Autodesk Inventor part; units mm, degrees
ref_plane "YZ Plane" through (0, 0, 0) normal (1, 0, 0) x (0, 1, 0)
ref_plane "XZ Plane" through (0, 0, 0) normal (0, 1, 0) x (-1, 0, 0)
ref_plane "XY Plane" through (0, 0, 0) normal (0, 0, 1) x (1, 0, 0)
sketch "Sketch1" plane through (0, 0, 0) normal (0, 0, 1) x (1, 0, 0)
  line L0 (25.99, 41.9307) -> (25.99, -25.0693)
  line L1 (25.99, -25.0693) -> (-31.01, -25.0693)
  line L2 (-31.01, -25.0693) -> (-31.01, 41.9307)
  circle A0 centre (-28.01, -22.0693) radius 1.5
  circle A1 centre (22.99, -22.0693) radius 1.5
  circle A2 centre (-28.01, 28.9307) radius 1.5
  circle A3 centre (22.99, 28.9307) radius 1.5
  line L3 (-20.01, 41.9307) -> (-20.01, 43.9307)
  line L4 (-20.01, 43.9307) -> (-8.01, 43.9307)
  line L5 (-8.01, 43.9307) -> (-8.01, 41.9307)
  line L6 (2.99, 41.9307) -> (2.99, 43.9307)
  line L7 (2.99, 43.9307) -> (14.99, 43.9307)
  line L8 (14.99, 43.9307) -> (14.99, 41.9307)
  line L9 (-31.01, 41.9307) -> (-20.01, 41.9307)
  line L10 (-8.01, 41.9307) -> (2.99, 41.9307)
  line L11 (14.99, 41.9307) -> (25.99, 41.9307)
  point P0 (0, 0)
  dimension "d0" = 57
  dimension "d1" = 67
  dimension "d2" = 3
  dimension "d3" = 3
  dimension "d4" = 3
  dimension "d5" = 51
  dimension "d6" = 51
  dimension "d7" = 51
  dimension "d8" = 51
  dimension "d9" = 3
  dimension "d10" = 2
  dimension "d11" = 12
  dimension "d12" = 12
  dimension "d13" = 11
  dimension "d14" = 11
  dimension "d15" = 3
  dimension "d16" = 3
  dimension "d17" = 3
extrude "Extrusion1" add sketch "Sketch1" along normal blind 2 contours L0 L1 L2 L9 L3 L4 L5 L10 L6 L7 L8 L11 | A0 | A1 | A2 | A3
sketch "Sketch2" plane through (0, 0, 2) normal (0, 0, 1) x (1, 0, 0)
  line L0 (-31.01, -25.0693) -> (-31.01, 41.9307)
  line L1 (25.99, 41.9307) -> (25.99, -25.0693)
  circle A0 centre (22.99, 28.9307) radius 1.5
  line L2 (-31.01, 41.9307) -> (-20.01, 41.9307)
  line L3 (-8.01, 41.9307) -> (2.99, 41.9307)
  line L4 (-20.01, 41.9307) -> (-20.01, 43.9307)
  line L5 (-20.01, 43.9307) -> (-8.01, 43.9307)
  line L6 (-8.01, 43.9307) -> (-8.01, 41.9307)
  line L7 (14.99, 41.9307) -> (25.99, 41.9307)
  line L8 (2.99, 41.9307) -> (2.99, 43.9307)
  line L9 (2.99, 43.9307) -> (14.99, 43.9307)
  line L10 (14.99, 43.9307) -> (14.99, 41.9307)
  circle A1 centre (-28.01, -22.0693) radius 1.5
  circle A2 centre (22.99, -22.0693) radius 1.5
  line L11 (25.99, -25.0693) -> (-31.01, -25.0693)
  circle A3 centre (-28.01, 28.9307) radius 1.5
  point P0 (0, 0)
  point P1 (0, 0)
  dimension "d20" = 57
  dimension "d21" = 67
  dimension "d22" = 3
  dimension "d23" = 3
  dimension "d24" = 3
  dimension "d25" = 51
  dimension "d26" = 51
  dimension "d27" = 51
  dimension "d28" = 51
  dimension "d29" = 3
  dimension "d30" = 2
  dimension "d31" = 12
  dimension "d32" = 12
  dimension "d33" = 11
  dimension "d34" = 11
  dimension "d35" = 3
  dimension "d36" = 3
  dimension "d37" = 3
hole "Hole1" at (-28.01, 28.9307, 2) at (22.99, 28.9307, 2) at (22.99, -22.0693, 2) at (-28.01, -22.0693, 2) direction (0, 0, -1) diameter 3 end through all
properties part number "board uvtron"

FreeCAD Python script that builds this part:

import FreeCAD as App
import Part
import Sketcher
Q = App.Units.Quantity

doc = App.newDocument("Part")
body = doc.addObject("PartDesign::Body", "Body")

# Sketch on XY plane
sketch1 = doc.addObject("Sketcher::SketchObject", "Sketch")
body.addObject(sketch1)
sketch1.AttachmentSupport = (doc.XY_Plane, [""])
sketch1.MapMode = "FlatFace"
sketch1.addGeometry([
    Part.LineSegment(App.Vector(26, -25.1, 0), App.Vector(26, 41.9, 0)),  # 0
    Part.LineSegment(App.Vector(26, 41.9, 0), App.Vector(15, 41.9, 0)),  # 1
    Part.LineSegment(App.Vector(15, 41.9, 0), App.Vector(15, 43.9, 0)),  # 2
    Part.LineSegment(App.Vector(15, 43.9, 0), App.Vector(3, 43.9, 0)),  # 3
    Part.LineSegment(App.Vector(3, 43.9, 0), App.Vector(3, 41.9, 0)),  # 4
    Part.LineSegment(App.Vector(3, 41.9, 0), App.Vector(-8, 41.9, 0)),  # 5
    Part.LineSegment(App.Vector(-8, 41.9, 0), App.Vector(-8, 43.9, 0)),  # 6
    Part.LineSegment(App.Vector(-8, 43.9, 0), App.Vector(-20, 43.9, 0)),  # 7
    Part.LineSegment(App.Vector(-20, 43.9, 0), App.Vector(-20, 41.9, 0)),  # 8
    Part.LineSegment(App.Vector(-20, 41.9, 0), App.Vector(-31, 41.9, 0)),  # 9
    Part.LineSegment(App.Vector(-31, 41.9, 0), App.Vector(-31, -25.1, 0)),  # 10
    Part.LineSegment(App.Vector(-31, -25.1, 0), App.Vector(26, -25.1, 0)),  # 11
], False)
sketch1.addConstraint([
    Sketcher.Constraint("Coincident", 0, 2, 1, 1),
    Sketcher.Constraint("Coincident", 1, 2, 2, 1),
    Sketcher.Constraint("Coincident", 2, 2, 3, 1),
    Sketcher.Constraint("Coincident", 3, 2, 4, 1),
    Sketcher.Constraint("Coincident", 4, 2, 5, 1),
    Sketcher.Constraint("Coincident", 5, 2, 6, 1),
    Sketcher.Constraint("Coincident", 6, 2, 7, 1),
    Sketcher.Constraint("Coincident", 7, 2, 8, 1),
    Sketcher.Constraint("Coincident", 8, 2, 9, 1),
    Sketcher.Constraint("Coincident", 9, 2, 10, 1),
    Sketcher.Constraint("Coincident", 10, 2, 11, 1),
    Sketcher.Constraint("Coincident", 11, 2, 0, 1),
    Sketcher.Constraint("Vertical", 0),
    Sketcher.Constraint("Horizontal", 1),
    Sketcher.Constraint("Vertical", 2),
    Sketcher.Constraint("Horizontal", 3),
    Sketcher.Constraint("Vertical", 4),
    Sketcher.Constraint("Horizontal", 5),
    Sketcher.Constraint("Vertical", 6),
    Sketcher.Constraint("Horizontal", 7),
    Sketcher.Constraint("Vertical", 8),
    Sketcher.Constraint("Horizontal", 9),
    Sketcher.Constraint("Vertical", 10),
    Sketcher.Constraint("Horizontal", 11),
    Sketcher.Constraint("Horizontal", 1, 2, 4, 2),
    Sketcher.Constraint("Horizontal", 3, 2, 6, 2),
    Sketcher.Constraint("Horizontal", 5, 2, 8, 2),
    Sketcher.Constraint("Equal", 1, 5),
    Sketcher.Constraint("Equal", 3, 7),
    Sketcher.Constraint("Equal", 5, 9),
    Sketcher.Constraint("DistanceX", 1, 2, 1, 1, Q("11 mm")),
    Sketcher.Constraint("DistanceX", 3, 2, 3, 1, Q("12 mm")),
    Sketcher.Constraint("DistanceY", 0, 1, 0, 2, Q("67 mm")),
    Sketcher.Constraint("DistanceY", 2, 1, 2, 2, Q("2 mm")),
    Sketcher.Constraint("DistanceX", -1, 1, 0, 2, Q("25.99 mm")),
    Sketcher.Constraint("DistanceY", -1, 1, 0, 2, Q("41.9307 mm")),
])
pad1 = doc.addObject("PartDesign::Pad", "Pad")
body.addObject(pad1)
pad1.Profile = sketch1
pad1.Length = 2

# Sketch on XY plane
sketch2 = doc.addObject("Sketcher::SketchObject", "Sketch001")
body.addObject(sketch2)
sketch2.AttachmentSupport = (doc.XY_Plane, [""])
sketch2.MapMode = "FlatFace"
sketch2.AttachmentOffset = App.Placement(App.Vector(0, 0, 2), App.Rotation())
sketch2.addGeometry([
    Part.Circle(App.Vector(-28, 28.9, 0), App.Vector(0, 0, 1), 1.5),
    Part.Circle(App.Vector(23, 28.9, 0), App.Vector(0, 0, 1), 1.5),
    Part.Circle(App.Vector(23, -22.1, 0), App.Vector(0, 0, 1), 1.5),
    Part.Circle(App.Vector(-28, -22.1, 0), App.Vector(0, 0, 1), 1.5),
], False)
sketch2.addConstraint([
    Sketcher.Constraint("Equal", 0, 1),
    Sketcher.Constraint("Equal", 1, 2),
    Sketcher.Constraint("Equal", 2, 3),
    Sketcher.Constraint("Horizontal", 0, 3, 1, 3),
    Sketcher.Constraint("Horizontal", 2, 3, 3, 3),
    Sketcher.Constraint("Vertical", 1, 3, 2, 3),
    Sketcher.Constraint("Vertical", 0, 3, 3, 3),
    Sketcher.Constraint("Diameter", 0, Q("3 mm")),
    Sketcher.Constraint("DistanceX", 0, 3, 1, 3, Q("51 mm")),
    Sketcher.Constraint("DistanceY", 2, 3, 1, 3, Q("51 mm")),
    Sketcher.Constraint("DistanceX", 0, 3, -1, 1, Q("28.01 mm")),
    Sketcher.Constraint("DistanceY", -1, 1, 0, 3, Q("28.9307 mm")),
])
doc.recompute()
hole = doc.addObject("PartDesign::Hole", "Hole")
body.addObject(hole)
hole.Profile = sketch2
hole.ThreadType = "None"
hole.Diameter = 3
hole.DepthType = "ThroughAll"

doc.recompute()
